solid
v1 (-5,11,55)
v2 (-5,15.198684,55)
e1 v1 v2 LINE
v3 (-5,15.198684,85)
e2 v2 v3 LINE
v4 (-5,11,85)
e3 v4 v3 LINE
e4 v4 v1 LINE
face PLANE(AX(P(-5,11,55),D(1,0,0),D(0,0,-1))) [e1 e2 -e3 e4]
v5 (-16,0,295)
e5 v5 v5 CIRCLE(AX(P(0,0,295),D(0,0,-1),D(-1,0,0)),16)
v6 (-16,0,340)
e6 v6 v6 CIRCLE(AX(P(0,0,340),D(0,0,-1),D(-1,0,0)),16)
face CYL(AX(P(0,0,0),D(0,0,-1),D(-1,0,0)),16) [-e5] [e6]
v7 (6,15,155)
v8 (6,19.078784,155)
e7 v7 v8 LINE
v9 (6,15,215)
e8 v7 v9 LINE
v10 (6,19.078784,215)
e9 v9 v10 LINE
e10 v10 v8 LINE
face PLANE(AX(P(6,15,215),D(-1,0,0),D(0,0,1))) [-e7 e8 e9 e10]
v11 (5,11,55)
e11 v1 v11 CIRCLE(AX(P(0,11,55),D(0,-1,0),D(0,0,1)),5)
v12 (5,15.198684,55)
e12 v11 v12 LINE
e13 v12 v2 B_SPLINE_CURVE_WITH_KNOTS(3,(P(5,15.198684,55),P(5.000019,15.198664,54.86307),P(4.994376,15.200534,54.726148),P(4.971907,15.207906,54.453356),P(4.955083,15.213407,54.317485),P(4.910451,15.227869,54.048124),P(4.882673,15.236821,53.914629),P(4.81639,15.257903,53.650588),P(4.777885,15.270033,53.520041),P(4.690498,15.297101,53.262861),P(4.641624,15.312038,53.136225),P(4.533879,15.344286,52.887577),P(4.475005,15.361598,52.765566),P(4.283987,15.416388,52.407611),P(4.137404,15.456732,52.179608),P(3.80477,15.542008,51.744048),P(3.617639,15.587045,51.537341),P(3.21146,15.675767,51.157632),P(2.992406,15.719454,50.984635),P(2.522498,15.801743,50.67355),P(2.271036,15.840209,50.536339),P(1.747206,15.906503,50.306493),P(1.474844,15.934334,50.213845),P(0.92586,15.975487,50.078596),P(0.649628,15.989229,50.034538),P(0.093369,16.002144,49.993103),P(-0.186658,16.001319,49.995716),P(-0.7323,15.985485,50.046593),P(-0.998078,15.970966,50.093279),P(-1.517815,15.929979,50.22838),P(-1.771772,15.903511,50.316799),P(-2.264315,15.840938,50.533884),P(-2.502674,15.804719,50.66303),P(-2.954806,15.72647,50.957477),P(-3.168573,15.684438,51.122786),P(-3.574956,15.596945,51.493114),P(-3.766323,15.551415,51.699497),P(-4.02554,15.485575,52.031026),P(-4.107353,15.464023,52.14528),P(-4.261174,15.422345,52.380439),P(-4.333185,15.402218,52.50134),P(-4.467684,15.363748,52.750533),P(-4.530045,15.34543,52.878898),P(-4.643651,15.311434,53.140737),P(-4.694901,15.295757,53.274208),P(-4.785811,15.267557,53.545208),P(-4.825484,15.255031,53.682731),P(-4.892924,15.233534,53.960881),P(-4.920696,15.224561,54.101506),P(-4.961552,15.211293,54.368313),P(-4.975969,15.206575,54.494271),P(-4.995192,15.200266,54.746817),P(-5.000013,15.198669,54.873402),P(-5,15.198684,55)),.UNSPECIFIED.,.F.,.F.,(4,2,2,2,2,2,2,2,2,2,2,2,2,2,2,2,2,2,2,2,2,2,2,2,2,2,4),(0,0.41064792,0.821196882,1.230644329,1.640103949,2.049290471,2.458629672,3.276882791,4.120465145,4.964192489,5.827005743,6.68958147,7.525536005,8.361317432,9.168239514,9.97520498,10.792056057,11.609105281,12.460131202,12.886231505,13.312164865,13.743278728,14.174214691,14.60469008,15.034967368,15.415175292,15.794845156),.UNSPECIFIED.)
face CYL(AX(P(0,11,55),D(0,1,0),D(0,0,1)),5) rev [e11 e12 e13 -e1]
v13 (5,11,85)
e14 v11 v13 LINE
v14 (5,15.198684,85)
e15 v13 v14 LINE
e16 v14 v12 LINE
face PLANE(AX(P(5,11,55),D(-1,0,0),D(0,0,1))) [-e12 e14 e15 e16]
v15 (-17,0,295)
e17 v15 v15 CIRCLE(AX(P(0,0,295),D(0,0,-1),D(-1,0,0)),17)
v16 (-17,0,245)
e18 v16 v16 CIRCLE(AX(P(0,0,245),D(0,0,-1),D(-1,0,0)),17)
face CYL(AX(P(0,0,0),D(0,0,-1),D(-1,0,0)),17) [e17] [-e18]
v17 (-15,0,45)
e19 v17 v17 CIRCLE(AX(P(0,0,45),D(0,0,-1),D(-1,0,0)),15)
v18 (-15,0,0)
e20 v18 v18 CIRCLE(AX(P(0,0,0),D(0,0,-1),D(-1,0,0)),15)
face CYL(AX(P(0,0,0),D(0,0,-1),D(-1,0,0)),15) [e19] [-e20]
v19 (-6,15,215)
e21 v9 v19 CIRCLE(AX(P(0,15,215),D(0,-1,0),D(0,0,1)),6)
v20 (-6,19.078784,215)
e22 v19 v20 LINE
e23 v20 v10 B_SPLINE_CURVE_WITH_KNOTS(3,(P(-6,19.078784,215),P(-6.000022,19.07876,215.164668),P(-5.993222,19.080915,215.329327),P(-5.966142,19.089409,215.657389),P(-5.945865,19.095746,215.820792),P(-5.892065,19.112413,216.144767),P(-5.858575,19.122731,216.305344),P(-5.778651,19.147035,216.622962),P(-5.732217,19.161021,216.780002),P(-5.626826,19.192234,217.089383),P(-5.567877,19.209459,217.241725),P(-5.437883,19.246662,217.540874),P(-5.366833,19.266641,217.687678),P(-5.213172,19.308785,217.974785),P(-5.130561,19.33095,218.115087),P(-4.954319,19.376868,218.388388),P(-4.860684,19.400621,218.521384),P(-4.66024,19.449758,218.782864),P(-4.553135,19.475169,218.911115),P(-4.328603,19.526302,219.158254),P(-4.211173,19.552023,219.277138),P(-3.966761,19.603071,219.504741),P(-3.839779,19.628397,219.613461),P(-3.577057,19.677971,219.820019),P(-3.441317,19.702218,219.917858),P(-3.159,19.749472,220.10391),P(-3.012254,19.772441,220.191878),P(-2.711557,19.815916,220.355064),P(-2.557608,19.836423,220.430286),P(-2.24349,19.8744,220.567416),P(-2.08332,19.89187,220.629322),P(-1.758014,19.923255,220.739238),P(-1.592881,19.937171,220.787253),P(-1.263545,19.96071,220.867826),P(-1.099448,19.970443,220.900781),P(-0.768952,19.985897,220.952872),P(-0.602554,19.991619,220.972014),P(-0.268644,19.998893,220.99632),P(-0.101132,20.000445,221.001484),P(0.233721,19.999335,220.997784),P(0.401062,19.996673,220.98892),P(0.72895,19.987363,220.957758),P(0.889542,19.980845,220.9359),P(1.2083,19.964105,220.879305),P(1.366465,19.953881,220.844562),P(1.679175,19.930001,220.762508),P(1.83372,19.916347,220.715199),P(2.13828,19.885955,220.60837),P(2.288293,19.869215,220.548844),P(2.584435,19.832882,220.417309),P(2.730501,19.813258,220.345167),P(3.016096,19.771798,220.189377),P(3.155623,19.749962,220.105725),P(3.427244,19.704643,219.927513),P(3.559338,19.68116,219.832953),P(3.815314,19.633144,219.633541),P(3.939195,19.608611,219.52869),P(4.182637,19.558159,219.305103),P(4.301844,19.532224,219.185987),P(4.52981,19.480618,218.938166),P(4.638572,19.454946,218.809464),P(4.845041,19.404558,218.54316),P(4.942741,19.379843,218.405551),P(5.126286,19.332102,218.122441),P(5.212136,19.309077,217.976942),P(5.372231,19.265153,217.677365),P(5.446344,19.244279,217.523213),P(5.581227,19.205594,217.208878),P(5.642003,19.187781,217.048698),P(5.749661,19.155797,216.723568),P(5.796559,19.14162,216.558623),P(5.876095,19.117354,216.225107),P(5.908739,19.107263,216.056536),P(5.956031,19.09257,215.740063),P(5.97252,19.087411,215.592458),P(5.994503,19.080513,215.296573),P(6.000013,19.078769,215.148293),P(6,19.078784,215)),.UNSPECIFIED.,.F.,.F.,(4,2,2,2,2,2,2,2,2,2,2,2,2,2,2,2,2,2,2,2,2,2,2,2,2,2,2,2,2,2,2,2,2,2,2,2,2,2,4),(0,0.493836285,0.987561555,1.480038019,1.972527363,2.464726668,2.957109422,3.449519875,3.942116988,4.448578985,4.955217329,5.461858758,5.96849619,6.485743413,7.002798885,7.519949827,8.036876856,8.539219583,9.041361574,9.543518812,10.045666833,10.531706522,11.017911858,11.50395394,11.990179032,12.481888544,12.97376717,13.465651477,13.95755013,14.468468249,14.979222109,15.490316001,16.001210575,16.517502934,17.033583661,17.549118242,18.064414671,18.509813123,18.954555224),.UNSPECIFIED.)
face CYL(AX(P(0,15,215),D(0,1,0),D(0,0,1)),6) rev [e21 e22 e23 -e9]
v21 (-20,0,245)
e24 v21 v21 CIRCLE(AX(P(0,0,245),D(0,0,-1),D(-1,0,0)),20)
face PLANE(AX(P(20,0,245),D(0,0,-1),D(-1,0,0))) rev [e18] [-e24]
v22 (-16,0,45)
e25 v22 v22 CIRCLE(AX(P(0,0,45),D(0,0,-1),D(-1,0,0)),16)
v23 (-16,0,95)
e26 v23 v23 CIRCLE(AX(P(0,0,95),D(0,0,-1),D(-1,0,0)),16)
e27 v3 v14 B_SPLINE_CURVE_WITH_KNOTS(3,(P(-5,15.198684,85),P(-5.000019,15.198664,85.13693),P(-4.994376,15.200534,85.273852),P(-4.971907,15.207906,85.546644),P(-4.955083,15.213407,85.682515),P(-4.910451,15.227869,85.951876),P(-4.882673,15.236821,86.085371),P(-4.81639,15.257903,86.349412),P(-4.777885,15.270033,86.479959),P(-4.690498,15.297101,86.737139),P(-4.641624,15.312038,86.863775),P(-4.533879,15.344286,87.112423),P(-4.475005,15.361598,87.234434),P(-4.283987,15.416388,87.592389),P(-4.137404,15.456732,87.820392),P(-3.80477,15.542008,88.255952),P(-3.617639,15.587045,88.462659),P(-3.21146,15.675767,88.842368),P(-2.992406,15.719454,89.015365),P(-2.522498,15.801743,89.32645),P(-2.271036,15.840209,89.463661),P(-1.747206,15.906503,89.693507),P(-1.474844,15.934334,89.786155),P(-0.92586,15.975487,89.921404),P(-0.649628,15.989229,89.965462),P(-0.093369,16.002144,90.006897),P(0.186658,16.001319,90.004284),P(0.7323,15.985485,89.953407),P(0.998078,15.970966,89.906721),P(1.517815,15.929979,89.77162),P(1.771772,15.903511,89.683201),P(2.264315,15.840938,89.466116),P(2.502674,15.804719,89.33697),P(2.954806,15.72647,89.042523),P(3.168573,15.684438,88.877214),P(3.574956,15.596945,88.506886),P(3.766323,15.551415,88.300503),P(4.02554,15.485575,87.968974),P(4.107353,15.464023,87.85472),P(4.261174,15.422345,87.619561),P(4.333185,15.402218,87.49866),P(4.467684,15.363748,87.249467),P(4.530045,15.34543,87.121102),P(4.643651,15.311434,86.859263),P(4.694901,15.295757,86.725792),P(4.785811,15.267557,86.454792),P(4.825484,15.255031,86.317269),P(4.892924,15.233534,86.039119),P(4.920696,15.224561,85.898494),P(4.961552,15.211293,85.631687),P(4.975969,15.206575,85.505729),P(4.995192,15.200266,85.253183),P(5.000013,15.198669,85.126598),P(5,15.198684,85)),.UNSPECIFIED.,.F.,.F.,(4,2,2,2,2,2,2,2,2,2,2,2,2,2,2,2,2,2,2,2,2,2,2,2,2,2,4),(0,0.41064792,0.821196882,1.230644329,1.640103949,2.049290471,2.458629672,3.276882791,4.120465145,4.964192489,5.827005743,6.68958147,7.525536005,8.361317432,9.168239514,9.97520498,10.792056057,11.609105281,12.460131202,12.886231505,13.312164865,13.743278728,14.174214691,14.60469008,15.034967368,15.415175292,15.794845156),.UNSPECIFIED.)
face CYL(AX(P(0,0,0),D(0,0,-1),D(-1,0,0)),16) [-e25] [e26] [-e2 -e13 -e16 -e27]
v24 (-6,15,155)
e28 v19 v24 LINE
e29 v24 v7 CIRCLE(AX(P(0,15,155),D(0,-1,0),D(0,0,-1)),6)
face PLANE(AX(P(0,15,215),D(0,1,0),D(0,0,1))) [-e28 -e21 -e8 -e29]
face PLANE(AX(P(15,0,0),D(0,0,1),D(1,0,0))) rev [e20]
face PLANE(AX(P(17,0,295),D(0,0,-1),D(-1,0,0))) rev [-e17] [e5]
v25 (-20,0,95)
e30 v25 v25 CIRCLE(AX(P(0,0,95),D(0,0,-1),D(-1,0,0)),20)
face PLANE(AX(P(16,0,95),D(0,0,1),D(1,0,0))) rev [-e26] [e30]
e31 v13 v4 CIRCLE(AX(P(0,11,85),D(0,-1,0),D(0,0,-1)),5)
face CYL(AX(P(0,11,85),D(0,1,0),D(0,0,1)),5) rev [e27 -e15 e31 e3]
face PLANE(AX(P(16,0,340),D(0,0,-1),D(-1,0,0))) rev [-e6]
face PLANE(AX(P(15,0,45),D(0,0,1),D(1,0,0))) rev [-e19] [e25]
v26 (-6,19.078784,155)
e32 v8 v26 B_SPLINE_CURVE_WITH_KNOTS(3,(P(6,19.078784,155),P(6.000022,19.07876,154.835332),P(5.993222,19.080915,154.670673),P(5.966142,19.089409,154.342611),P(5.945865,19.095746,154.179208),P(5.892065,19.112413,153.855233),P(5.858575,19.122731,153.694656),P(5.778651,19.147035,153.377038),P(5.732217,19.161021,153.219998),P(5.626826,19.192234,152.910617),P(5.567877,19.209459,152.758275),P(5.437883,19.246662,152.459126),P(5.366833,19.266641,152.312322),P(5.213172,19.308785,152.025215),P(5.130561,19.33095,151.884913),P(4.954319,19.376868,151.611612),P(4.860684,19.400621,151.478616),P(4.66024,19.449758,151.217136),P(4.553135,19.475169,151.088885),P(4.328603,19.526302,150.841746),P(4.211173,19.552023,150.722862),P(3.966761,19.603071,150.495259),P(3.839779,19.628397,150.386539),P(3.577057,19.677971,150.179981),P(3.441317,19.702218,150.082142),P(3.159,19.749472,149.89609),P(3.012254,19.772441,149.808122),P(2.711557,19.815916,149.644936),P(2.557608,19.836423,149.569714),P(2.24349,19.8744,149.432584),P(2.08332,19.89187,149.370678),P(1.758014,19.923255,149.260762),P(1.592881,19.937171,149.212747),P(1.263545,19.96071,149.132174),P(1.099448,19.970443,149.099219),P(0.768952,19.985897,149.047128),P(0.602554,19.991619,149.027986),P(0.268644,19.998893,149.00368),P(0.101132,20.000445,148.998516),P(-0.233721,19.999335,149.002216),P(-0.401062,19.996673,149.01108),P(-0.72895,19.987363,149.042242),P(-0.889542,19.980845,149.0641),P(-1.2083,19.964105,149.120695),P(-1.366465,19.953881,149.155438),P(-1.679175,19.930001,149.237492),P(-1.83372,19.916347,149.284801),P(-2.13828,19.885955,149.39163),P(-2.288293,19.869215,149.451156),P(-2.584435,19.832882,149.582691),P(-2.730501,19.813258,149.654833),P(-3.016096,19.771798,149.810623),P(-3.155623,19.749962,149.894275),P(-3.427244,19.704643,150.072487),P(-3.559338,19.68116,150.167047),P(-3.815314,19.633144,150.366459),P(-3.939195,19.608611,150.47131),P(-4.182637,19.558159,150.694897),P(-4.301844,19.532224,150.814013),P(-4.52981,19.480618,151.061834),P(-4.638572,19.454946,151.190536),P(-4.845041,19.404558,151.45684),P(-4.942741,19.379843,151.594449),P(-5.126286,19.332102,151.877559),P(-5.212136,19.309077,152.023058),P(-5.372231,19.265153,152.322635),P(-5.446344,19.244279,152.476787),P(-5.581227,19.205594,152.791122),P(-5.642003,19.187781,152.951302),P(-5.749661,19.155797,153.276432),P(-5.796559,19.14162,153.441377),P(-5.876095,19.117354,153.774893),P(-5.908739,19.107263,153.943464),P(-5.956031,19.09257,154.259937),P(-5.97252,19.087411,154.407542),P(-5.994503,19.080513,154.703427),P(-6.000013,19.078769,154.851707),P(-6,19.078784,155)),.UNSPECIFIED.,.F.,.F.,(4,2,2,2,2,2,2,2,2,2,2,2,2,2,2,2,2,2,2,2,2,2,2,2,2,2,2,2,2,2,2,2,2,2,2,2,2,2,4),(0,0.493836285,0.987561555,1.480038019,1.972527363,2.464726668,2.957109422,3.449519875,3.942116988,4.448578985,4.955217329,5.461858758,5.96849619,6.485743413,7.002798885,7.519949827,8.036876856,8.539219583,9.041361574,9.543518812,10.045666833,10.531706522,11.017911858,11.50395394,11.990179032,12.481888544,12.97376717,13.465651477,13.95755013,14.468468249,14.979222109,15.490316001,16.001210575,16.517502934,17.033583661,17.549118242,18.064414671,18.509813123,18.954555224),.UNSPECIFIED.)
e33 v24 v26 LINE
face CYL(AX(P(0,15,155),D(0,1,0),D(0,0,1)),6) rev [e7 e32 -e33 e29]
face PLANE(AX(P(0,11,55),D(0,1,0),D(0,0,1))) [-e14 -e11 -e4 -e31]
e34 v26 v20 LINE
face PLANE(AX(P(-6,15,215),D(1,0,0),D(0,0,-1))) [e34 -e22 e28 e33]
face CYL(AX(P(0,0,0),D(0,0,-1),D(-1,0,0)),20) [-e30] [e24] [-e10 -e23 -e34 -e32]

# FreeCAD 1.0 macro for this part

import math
import FreeCAD as App
import Part
import Sketcher


def add_polygon(sketch, points):
    """Adds a closed chain of lines whose ends are joined by coincident constraints."""
    first, n = sketch.GeometryCount, len(points)
    for a, b in zip(points, points[1:] + points[:1]):
        sketch.addGeometry(Part.LineSegment(App.Vector(*a, 0), App.Vector(*b, 0)), False)
    for i in range(n):
        sketch.addConstraint(Sketcher.Constraint("Coincident", first + i, 2, first + (i + 1) % n, 1))

doc = App.newDocument("Part")
body = doc.addObject("PartDesign::Body", "Body")

sketch1 = body.newObject("Sketcher::SketchObject", "Sketch")
sketch1.AttachmentSupport = (doc.getObject("XZ_Plane"), [""])
sketch1.MapMode = "FlatFace"
add_polygon(sketch1, [(0, 0), (0, 340), (16, 340), (16, 295), (17, 295), (17, 245), (20, 245), (20, 95), (16, 95), (16, 45), (15, 45), (15, 0)])
sketch1.addConstraint([
    Sketcher.Constraint("Vertical", 0),
    Sketcher.Constraint("Horizontal", 1),
    Sketcher.Constraint("Vertical", 2),
    Sketcher.Constraint("Horizontal", 3),
    Sketcher.Constraint("Vertical", 4),
    Sketcher.Constraint("Horizontal", 5),
    Sketcher.Constraint("Vertical", 6),
    Sketcher.Constraint("Horizontal", 7),
    Sketcher.Constraint("Vertical", 8),
    Sketcher.Constraint("Horizontal", 9),
    Sketcher.Constraint("Vertical", 10),
    Sketcher.Constraint("Horizontal", 11),
    Sketcher.Constraint("Coincident", 11, 2, -1, 1),
    Sketcher.Constraint("Vertical", 2, 2, 7, 2),
    Sketcher.Constraint("Equal", 3, 9),
    Sketcher.Constraint("Equal", 4, 8),
    Sketcher.Constraint("Equal", 2, 10),
    Sketcher.Constraint("DistanceX", 1, 1, 1, 2, 16.0),
    Sketcher.Constraint("DistanceX", 3, 1, 3, 2, 1.0),
    Sketcher.Constraint("DistanceX", 5, 1, 5, 2, 3.0),
    Sketcher.Constraint("DistanceY", 0, 1, 0, 2, 340.0),
    Sketcher.Constraint("DistanceY", 2, 2, 2, 1, 45.0),
    Sketcher.Constraint("DistanceY", 4, 2, 4, 1, 50.0),
])
revolution = body.newObject("PartDesign::Revolution", "Revolution")
revolution.Profile = sketch1
revolution.ReferenceAxis = (sketch1, ["V_Axis"])
revolution.Angle = 360

sketch2 = body.newObject("Sketcher::SketchObject", "Sketch001")
sketch2.AttachmentSupport = (doc.getObject("XZ_Plane"), [""])
sketch2.MapMode = "FlatFace"
sketch2.AttachmentOffset = App.Placement(App.Vector(0, 0, -16), App.Rotation())
sketch2.addGeometry([
    Part.LineSegment(App.Vector(5, 55, 0), App.Vector(5, 85, 0)),
    Part.ArcOfCircle(Part.Circle(App.Vector(0, 85, 0), App.Vector(0, 0, 1), 5), math.radians(0), math.radians(180)),
    Part.LineSegment(App.Vector(-5, 85, 0), App.Vector(-5, 55, 0)),
    Part.ArcOfCircle(Part.Circle(App.Vector(0, 55, 0), App.Vector(0, 0, 1), 5), math.radians(180), math.radians(360)),
], False)
sketch2.addConstraint([
    Sketcher.Constraint("Tangent", 0, 2, 1, 1),
    Sketcher.Constraint("Tangent", 1, 2, 2, 1),
    Sketcher.Constraint("Tangent", 2, 2, 3, 1),
    Sketcher.Constraint("Tangent", 3, 2, 0, 1),
    Sketcher.Constraint("Vertical", 0),
    Sketcher.Constraint("Vertical", 2),
    Sketcher.Constraint("PointOnObject", 1, 3, -2),
    Sketcher.Constraint("Radius", 1, 5.0),
    Sketcher.Constraint("DistanceY", 0, 1, 0, 2, 30.0),
    Sketcher.Constraint("DistanceY", -1, 1, 1, 3, 85.0),
])
pocket1 = body.newObject("PartDesign::Pocket", "Pocket")
pocket1.Profile = sketch2
pocket1.Length = 5
pocket1.Reversed = True

sketch3 = body.newObject("Sketcher::SketchObject", "Sketch002")
sketch3.AttachmentSupport = (doc.getObject("XZ_Plane"), [""])
sketch3.MapMode = "FlatFace"
sketch3.AttachmentOffset = App.Placement(App.Vector(0, 0, -20), App.Rotation())
sketch3.addGeometry([
    Part.LineSegment(App.Vector(-6, 215, 0), App.Vector(-6, 155, 0)),
    Part.ArcOfCircle(Part.Circle(App.Vector(0, 155, 0), App.Vector(0, 0, 1), 6), math.radians(180), math.radians(360)),
    Part.LineSegment(App.Vector(6, 155, 0), App.Vector(6, 215, 0)),
    Part.ArcOfCircle(Part.Circle(App.Vector(0, 215, 0), App.Vector(0, 0, 1), 6), math.radians(0), math.radians(180)),
], False)
sketch3.addConstraint([
    Sketcher.Constraint("Tangent", 0, 2, 1, 1),
    Sketcher.Constraint("Tangent", 1, 2, 2, 1),
    Sketcher.Constraint("Tangent", 2, 2, 3, 1),
    Sketcher.Constraint("Tangent", 3, 2, 0, 1),
    Sketcher.Constraint("Vertical", 0),
    Sketcher.Constraint("Vertical", 2),
    Sketcher.Constraint("PointOnObject", 1, 3, -2),
    Sketcher.Constraint("Radius", 1, 6.0),
    Sketcher.Constraint("DistanceY", 0, 2, 0, 1, 60.0),
    Sketcher.Constraint("DistanceY", -1, 1, 1, 3, 155.0),
])
pocket2 = body.newObject("PartDesign::Pocket", "Pocket001")
pocket2.Profile = sketch3
pocket2.Length = 5
pocket2.Reversed = True

doc.recompute()
